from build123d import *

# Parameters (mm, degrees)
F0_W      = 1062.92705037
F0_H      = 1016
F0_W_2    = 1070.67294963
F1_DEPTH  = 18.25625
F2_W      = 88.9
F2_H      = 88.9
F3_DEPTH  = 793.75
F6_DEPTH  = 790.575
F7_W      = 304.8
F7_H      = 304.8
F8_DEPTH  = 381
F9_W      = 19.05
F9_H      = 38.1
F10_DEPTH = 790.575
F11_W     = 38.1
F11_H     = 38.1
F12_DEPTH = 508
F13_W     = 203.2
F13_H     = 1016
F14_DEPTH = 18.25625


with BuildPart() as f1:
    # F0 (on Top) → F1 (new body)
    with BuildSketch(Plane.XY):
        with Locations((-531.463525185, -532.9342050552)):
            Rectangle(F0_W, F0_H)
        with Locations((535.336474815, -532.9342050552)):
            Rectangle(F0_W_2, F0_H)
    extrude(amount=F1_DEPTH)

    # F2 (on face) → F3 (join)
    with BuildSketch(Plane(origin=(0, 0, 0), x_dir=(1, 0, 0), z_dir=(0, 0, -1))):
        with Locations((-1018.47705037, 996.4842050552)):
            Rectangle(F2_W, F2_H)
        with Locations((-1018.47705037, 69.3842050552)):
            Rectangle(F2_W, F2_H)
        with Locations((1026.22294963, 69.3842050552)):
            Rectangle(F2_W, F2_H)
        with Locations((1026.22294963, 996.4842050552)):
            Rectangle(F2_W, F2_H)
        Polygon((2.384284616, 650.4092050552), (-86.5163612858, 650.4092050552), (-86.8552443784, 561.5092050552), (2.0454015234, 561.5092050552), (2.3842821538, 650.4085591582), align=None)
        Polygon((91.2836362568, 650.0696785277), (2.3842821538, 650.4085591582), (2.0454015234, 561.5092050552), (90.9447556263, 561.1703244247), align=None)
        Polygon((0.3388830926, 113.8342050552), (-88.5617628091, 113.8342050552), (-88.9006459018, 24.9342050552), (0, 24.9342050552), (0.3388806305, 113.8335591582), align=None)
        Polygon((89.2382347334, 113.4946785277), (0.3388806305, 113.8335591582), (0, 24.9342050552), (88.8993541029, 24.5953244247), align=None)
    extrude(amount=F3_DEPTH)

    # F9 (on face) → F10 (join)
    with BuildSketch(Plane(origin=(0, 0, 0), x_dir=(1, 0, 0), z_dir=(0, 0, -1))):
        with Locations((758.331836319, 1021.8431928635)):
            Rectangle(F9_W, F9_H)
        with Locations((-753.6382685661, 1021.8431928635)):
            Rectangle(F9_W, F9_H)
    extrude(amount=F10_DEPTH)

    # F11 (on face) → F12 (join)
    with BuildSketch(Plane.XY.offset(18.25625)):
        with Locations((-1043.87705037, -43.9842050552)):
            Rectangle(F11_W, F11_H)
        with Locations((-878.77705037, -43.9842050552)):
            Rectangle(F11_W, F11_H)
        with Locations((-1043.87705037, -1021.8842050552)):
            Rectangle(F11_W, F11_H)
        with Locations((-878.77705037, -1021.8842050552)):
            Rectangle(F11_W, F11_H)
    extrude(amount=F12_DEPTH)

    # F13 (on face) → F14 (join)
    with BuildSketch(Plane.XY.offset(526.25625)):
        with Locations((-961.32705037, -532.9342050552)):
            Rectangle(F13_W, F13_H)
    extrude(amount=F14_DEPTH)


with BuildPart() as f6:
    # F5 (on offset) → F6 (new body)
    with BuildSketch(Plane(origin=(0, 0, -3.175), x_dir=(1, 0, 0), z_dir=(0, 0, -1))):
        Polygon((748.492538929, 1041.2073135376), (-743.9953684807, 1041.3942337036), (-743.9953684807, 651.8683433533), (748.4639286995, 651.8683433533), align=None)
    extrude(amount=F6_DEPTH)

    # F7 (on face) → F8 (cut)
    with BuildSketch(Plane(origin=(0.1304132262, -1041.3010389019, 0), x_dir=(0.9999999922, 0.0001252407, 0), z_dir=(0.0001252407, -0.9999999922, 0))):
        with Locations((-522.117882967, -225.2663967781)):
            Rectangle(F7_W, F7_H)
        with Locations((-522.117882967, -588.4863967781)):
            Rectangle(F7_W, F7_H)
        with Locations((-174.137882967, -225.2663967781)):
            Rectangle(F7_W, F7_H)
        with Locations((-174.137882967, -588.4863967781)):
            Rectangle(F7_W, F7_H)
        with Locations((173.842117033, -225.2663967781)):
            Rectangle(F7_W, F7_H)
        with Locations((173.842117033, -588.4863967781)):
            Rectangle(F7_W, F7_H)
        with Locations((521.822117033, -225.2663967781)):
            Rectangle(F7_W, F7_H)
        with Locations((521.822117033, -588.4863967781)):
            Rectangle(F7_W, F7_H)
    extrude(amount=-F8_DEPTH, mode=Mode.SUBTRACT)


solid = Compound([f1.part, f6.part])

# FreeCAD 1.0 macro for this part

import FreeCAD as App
import Part
import Sketcher
Q = App.Units.Quantity


def add_polygon(sketch, points):
    """Adds a closed chain of lines whose ends are joined by coincident constraints."""
    first, n = sketch.GeometryCount, len(points)
    for a, b in zip(points, points[1:] + points[:1]):
        sketch.addGeometry(Part.LineSegment(App.Vector(*a, 0), App.Vector(*b, 0)), False)
    for i in range(n):
        sketch.addConstraint(Sketcher.Constraint("Coincident", first + i, 2, first + (i + 1) % n, 1))

doc = App.newDocument("Part")
body = doc.addObject("PartDesign::Body", "Body")

sketch1 = body.newObject("Sketcher::SketchObject", "Sketch")
sketch1.AttachmentSupport = (doc.getObject("XY_Plane"), [""])
sketch1.MapMode = "FlatFace"
add_polygon(sketch1, [(-1063, -25), (-1063, -1041), (1071, -1041), (1071, -25)])
sketch1.addConstraint([
    Sketcher.Constraint("Vertical", 0),
    Sketcher.Constraint("Horizontal", 1),
    Sketcher.Constraint("Vertical", 2),
    Sketcher.Constraint("Horizontal", 3),
    Sketcher.Constraint("DistanceX", 1, 1, 1, 2, Q("84 in")),
    Sketcher.Constraint("DistanceY", 0, 2, 0, 1, Q("40 in")),
    Sketcher.Constraint("DistanceX", 0, 2, -1, 1, 1062.92705),
    Sketcher.Constraint("DistanceY", 0, 2, -1, 1, 1040.934205),
])
pad1 = body.newObject("PartDesign::Pad", "Pad")
pad1.Profile = sketch1
pad1.Length = Q("0.71875 in")

sketch2 = body.newObject("Sketcher::SketchObject", "Sketch001")
sketch2.AttachmentSupport = (doc.getObject("XY_Plane"), [""])
sketch2.MapMode = "FlatFace"
add_polygon(sketch2, [(-1062.9271, -1040.9342), (-1062.9271, -952.0342), (-974.0271, -952.0342), (-974.0271, -1040.9342)])
add_polygon(sketch2, [(-1062.9271, -113.8342), (-1062.9271, -24.9342), (-974.0271, -24.9342), (-974.0271, -113.8342)])
add_polygon(sketch2, [(981.7729, -113.8342), (981.7729, -24.9342), (1070.6729, -24.9342), (1070.6729, -113.8342)])
add_polygon(sketch2, [(981.7729, -1040.9342), (981.7729, -952.0342), (1070.6729, -952.0342), (1070.6729, -1040.9342)])
add_polygon(sketch2, [(2.3843, -650.4092), (-86.5164, -650.4092), (-86.8552, -561.5092), (2.0454, -561.5092), (90.9448, -561.1703), (91.2836, -650.0697), (2.3843, -650.4086)])
add_polygon(sketch2, [(0.3389, -113.8342), (-88.5618, -113.8342), (-88.9006, -24.9342), (0, -24.9342), (88.8994, -24.5953), (89.2382, -113.4947), (0.3389, -113.8336)])
sketch2.addConstraint([
    Sketcher.Constraint("Vertical", 0),
    Sketcher.Constraint("Horizontal", 1),
    Sketcher.Constraint("Vertical", 2),
    Sketcher.Constraint("Horizontal", 3),
    Sketcher.Constraint("Vertical", 4),
    Sketcher.Constraint("Horizontal", 5),
    Sketcher.Constraint("Vertical", 6),
    Sketcher.Constraint("Horizontal", 7),
    Sketcher.Constraint("Vertical", 8),
    Sketcher.Constraint("Horizontal", 9),
    Sketcher.Constraint("Vertical", 10),
    Sketcher.Constraint("Horizontal", 11),
    Sketcher.Constraint("Vertical", 12),
    Sketcher.Constraint("Horizontal", 13),
    Sketcher.Constraint("Vertical", 14),
    Sketcher.Constraint("Horizontal", 15),
    Sketcher.Constraint("Horizontal", 16),
    Sketcher.Constraint("Horizontal", 18),
    Sketcher.Constraint("Horizontal", 23),
    Sketcher.Constraint("Horizontal", 25),
    Sketcher.Constraint("PointOnObject", 25, 2, -2),
    Sketcher.Constraint("Perpendicular", 17, 19),
    Sketcher.Constraint("Perpendicular", 19, 20),
    Sketcher.Constraint("Perpendicular", 20, 21),
    Sketcher.Constraint("Perpendicular", 21, 22),
    Sketcher.Constraint("Perpendicular", 21, 24),
    Sketcher.Constraint("Perpendicular", 24, 26),
    Sketcher.Constraint("Perpendicular", 26, 27),
    Sketcher.Constraint("Perpendicular", 27, 28),
    Sketcher.Constraint("Perpendicular", 28, 29),
    Sketcher.Constraint("Horizontal", 5, 2, 8, 2),
    Sketcher.Constraint("Horizontal", 7, 2, 10, 2),
    Sketcher.Constraint("Horizontal", 1, 2, 12, 2),
    Sketcher.Constraint("Horizontal", 3, 2, 14, 2),
    Sketcher.Constraint("Horizontal", 11, 2, 23, 2),
    Sketcher.Constraint("Horizontal", 9, 2, 24, 2),
    Sketcher.Constraint("Vertical", 3, 2, 4, 2),
    Sketcher.Constraint("Vertical", 2, 2, 5, 2),
    Sketcher.Constraint("Vertical", 11, 2, 12, 2),
    Sketcher.Constraint("Vertical", 10, 2, 13, 2),
    Sketcher.Constraint("Equal", 7, 9),
    Sketcher.Constraint("Equal", 16, 18),
    Sketcher.Constraint("Equal", 18, 23),
    Sketcher.Constraint("Equal", 23, 25),
    Sketcher.Constraint("Equal", 15, 0),
    Sketcher.Constraint("Equal", 2, 4),
    Sketcher.Constraint("Equal", 19, 20),
    Sketcher.Constraint("Equal", 17, 24),
    Sketcher.Constraint("Equal", 21, 26),
    Sketcher.Constraint("Equal", 26, 27),
    Sketcher.Constraint("DistanceX", 1, 1, 1, 2, Q("3.5 in")),
    Sketcher.Constraint("DistanceY", 3, 2, 4, 2, Q("40 in")),
    Sketcher.Constraint("DistanceX", 5, 2, 8, 2, Q("77 in")),
    Sketcher.Constraint("DistanceX", 17, 2, 19, 2, Q("7 in")),
    Sketcher.Constraint("Distance", 19, Q("3.5 in")),
    Sketcher.Constraint("DistanceY", 1, 2, 16, 2, Q("11.875 in")),
    Sketcher.Constraint("DistanceX", -1, 1, 18, 2, 2.045402),
    Sketcher.Constraint("DistanceX", 0, 2, -1, 1, 1062.92705),
    Sketcher.Constraint("DistanceX", 16, 2, -1, 1, 86.516361),
    Sketcher.Constraint("DistanceY", 20, 2, -1, 1, 650.069679),
])
pad2 = body.newObject("PartDesign::Pad", "Pad001")
pad2.Profile = sketch2
pad2.Length = Q("31.25 in")
pad2.Reversed = True

sketch3 = body.newObject("Sketcher::SketchObject", "Sketch002")
sketch3.AttachmentSupport = (doc.getObject("XY_Plane"), [""])
sketch3.MapMode = "FlatFace"
add_polygon(sketch3, [(749, -1041), (749, -1003), (768, -1003), (768, -1041)])
add_polygon(sketch3, [(-763, -1041), (-763, -1003), (-744, -1003), (-744, -1041)])
sketch3.addConstraint([
    Sketcher.Constraint("Vertical", 0),
    Sketcher.Constraint("Horizontal", 1),
    Sketcher.Constraint("Vertical", 2),
    Sketcher.Constraint("Horizontal", 3),
    Sketcher.Constraint("Vertical", 4),
    Sketcher.Constraint("Horizontal", 5),
    Sketcher.Constraint("Vertical", 6),
    Sketcher.Constraint("Horizontal", 7),
    Sketcher.Constraint("Horizontal", 1, 2, 4, 2),
    Sketcher.Constraint("Horizontal", 3, 2, 6, 2),
    Sketcher.Constraint("Equal", 3, 5),
    Sketcher.Constraint("DistanceY", 0, 1, 0, 2, Q("1.5 in")),
    Sketcher.Constraint("DistanceX", 1, 1, 1, 2, Q("0.75 in")),
    Sketcher.Constraint("DistanceX", 4, 2, -1, 1, 763.163269),
    Sketcher.Constraint("DistanceX", -1, 1, 0, 2, 748.806836),
    Sketcher.Constraint("DistanceY", 0, 2, -1, 1, 1002.793193),
])
pad3 = body.newObject("PartDesign::Pad", "Pad002")
pad3.Profile = sketch3
pad3.Length = Q("31.125 in")
pad3.Reversed = True

sketch4 = body.newObject("Sketcher::SketchObject", "Sketch003")
sketch4.AttachmentSupport = (doc.getObject("XY_Plane"), [""])
sketch4.MapMode = "FlatFace"
sketch4.AttachmentOffset = App.Placement(App.Vector(0, 0, 0.71875 * 25.4), App.Rotation())
add_polygon(sketch4, [(-1063, -25), (-1063, -63), (-1025, -63), (-1025, -25)])
add_polygon(sketch4, [(-898, -25), (-898, -63), (-860, -63), (-860, -25)])
add_polygon(sketch4, [(-1063, -1003), (-1063, -1041), (-1025, -1041), (-1025, -1003)])
add_polygon(sketch4, [(-898, -1003), (-898, -1041), (-860, -1041), (-860, -1003)])
sketch4.addConstraint([
    Sketcher.Constraint("Vertical", 0),
    Sketcher.Constraint("Horizontal", 1),
    Sketcher.Constraint("Vertical", 2),
    Sketcher.Constraint("Horizontal", 3),
    Sketcher.Constraint("Vertical", 4),
    Sketcher.Constraint("Horizontal", 5),
    Sketcher.Constraint("Vertical", 6),
    Sketcher.Constraint("Horizontal", 7),
    Sketcher.Constraint("Vertical", 8),
    Sketcher.Constraint("Horizontal", 9),
    Sketcher.Constraint("Vertical", 10),
    Sketcher.Constraint("Horizontal", 11),
    Sketcher.Constraint("Vertical", 12),
    Sketcher.Constraint("Horizontal", 13),
    Sketcher.Constraint("Vertical", 14),
    Sketcher.Constraint("Horizontal", 15),
    Sketcher.Constraint("Horizontal", 1, 2, 4, 2),
    Sketcher.Constraint("Horizontal", 3, 2, 6, 2),
    Sketcher.Constraint("Horizontal", 9, 2, 12, 2),
    Sketcher.Constraint("Horizontal", 11, 2, 14, 2),
    Sketcher.Constraint("Vertical", 3, 2, 8, 2),
    Sketcher.Constraint("Vertical", 2, 2, 9, 2),
    Sketcher.Constraint("Vertical", 7, 2, 12, 2),
    Sketcher.Constraint("Vertical", 6, 2, 13, 2),
    Sketcher.Constraint("Equal", 3, 5),
    Sketcher.Constraint("Equal", 15, 0),
    Sketcher.Constraint("Equal", 6, 8),
    Sketcher.Constraint("DistanceX", 1, 1, 1, 2, Q("1.5 in")),
    Sketcher.Constraint("DistanceX", 1, 2, 4, 2, Q("5 in")),
    Sketcher.Constraint("DistanceY", 8, 2, 3, 2, Q("40 in")),
    Sketcher.Constraint("DistanceX", 0, 2, -1, 1, 1062.92705),
    Sketcher.Constraint("DistanceY", 0, 2, -1, 1, 63.034205),
])
pad4 = body.newObject("PartDesign::Pad", "Pad003")
pad4.Profile = sketch4
pad4.Length = Q("20 in")

sketch5 = body.newObject("Sketcher::SketchObject", "Sketch004")
sketch5.AttachmentSupport = (doc.getObject("XY_Plane"), [""])
sketch5.MapMode = "FlatFace"
sketch5.AttachmentOffset = App.Placement(App.Vector(0, 0, 20.71875 * 25.4), App.Rotation())
add_polygon(sketch5, [(-1063, -25), (-1063, -1041), (-860, -1041), (-860, -25)])
sketch5.addConstraint([
    Sketcher.Constraint("Vertical", 0),
    Sketcher.Constraint("Horizontal", 1),
    Sketcher.Constraint("Vertical", 2),
    Sketcher.Constraint("Horizontal", 3),
    Sketcher.Constraint("DistanceX", 1, 1, 1, 2, Q("8 in")),
    Sketcher.Constraint("DistanceY", 0, 2, 0, 1, Q("40 in")),
    Sketcher.Constraint("DistanceX", 0, 2, -1, 1, 1062.92705),
    Sketcher.Constraint("DistanceY", 0, 2, -1, 1, 1040.934205),
])
pad5 = body.newObject("PartDesign::Pad", "Pad004")
pad5.Profile = sketch5
pad5.Length = Q("0.71875 in")
body2 = doc.addObject("PartDesign::Body", "Body001")

sketch6 = body2.newObject("Sketcher::SketchObject", "Sketch005")
sketch6.AttachmentSupport = (doc.getObject("XY_Plane001"), [""])
sketch6.MapMode = "FlatFace"
sketch6.AttachmentOffset = App.Placement(App.Vector(0, 0, -0.125 * 25.4), App.Rotation())
add_polygon(sketch6, [(748, -1041), (-744, -1041), (-744, -652), (748, -652)])
sketch6.addConstraint([
    Sketcher.Constraint("Vertical", 1),
    Sketcher.Constraint("Horizontal", 2),
    Sketcher.Constraint("DistanceY", 1, 1, 1, 2, 389.52589),
    Sketcher.Constraint("Distance", 0, 1492.487919),
    Sketcher.Constraint("Distance", 3, 389.338971),
    Sketcher.Constraint("DistanceX", 2, 1, 2, 2, 1492.459297),
    Sketcher.Constraint("DistanceX", 0, 2, -1, 1, 743.995368),
    Sketcher.Constraint("DistanceY", 0, 2, -1, 1, 1041.394234),
])
pad6 = body2.newObject("PartDesign::Pad", "Pad005")
pad6.Profile = sketch6
pad6.Length = Q("31.125 in")
pad6.Reversed = True

sketch7 = body2.newObject("Sketcher::SketchObject", "Sketch006")
sketch7.Placement = App.Placement(App.Vector(0.130413, -1041.301039, 0), App.Rotation(App.Vector(0.999999992, 0.000125241, 0), App.Vector(0, 0, 1), App.Vector(0.000125241, -0.999999992, 0), "ZXY"))
add_polygon(sketch7, [(-675, -73), (-675, -378), (-370, -378), (-370, -73)])
add_polygon(sketch7, [(-675, -436), (-675, -741), (-370, -741), (-370, -436)])
add_polygon(sketch7, [(-327, -73), (-327, -378), (-22, -378), (-22, -73)])
add_polygon(sketch7, [(-327, -436), (-327, -741), (-22, -741), (-22, -436)])
add_polygon(sketch7, [(21, -73), (21, -378), (326, -378), (326, -73)])
add_polygon(sketch7, [(21, -436), (21, -741), (326, -741), (326, -436)])
add_polygon(sketch7, [(369, -73), (369, -378), (674, -378), (674, -73)])
add_polygon(sketch7, [(369, -436), (369, -741), (674, -741), (674, -436)])
sketch7.addConstraint([
    Sketcher.Constraint("Vertical", 0),
    Sketcher.Constraint("Horizontal", 1),
    Sketcher.Constraint("Vertical", 2),
    Sketcher.Constraint("Horizontal", 3),
    Sketcher.Constraint("Vertical", 4),
    Sketcher.Constraint("Horizontal", 5),
    Sketcher.Constraint("Vertical", 6),
    Sketcher.Constraint("Horizontal", 7),
    Sketcher.Constraint("Vertical", 8),
    Sketcher.Constraint("Horizontal", 9),
    Sketcher.Constraint("Vertical", 10),
    Sketcher.Constraint("Horizontal", 11),
    Sketcher.Constraint("Vertical", 12),
    Sketcher.Constraint("Horizontal", 13),
    Sketcher.Constraint("Vertical", 14),
    Sketcher.Constraint("Horizontal", 15),
    Sketcher.Constraint("Vertical", 16),
    Sketcher.Constraint("Horizontal", 17),
    Sketcher.Constraint("Vertical", 18),
    Sketcher.Constraint("Horizontal", 19),
    Sketcher.Constraint("Vertical", 20),
    Sketcher.Constraint("Horizontal", 21),
    Sketcher.Constraint("Vertical", 22),
    Sketcher.Constraint("Horizontal", 23),
    Sketcher.Constraint("Vertical", 24),
    Sketcher.Constraint("Horizontal", 25),
    Sketcher.Constraint("Vertical", 26),
    Sketcher.Constraint("Horizontal", 27),
    Sketcher.Constraint("Vertical", 28),
    Sketcher.Constraint("Horizontal", 29),
    Sketcher.Constraint("Vertical", 30),
    Sketcher.Constraint("Horizontal", 31),
    Sketcher.Constraint("Horizontal", 1, 2, 8, 2),
    Sketcher.Constraint("Horizontal", 3, 2, 10, 2),
    Sketcher.Constraint("Horizontal", 5, 2, 12, 2),
    Sketcher.Constraint("Horizontal", 7, 2, 14, 2),
    Sketcher.Constraint("Horizontal", 9, 2, 16, 2),
    Sketcher.Constraint("Horizontal", 11, 2, 18, 2),
    Sketcher.Constraint("Horizontal", 13, 2, 20, 2),
    Sketcher.Constraint("Horizontal", 15, 2, 22, 2),
    Sketcher.Constraint("Horizontal", 17, 2, 24, 2),
    Sketcher.Constraint("Horizontal", 19, 2, 26, 2),
    Sketcher.Constraint("Horizontal", 21, 2, 28, 2),
    Sketcher.Constraint("Horizontal", 23, 2, 30, 2),
    Sketcher.Constraint("Vertical", 3, 2, 4, 2),
    Sketcher.Constraint("Vertical", 2, 2, 5, 2),
    Sketcher.Constraint("Vertical", 11, 2, 12, 2),
    Sketcher.Constraint("Vertical", 10, 2, 13, 2),
    Sketcher.Constraint("Vertical", 19, 2, 20, 2),
    Sketcher.Constraint("Vertical", 18, 2, 21, 2),
    Sketcher.Constraint("Vertical", 27, 2, 28, 2),
    Sketcher.Constraint("Vertical", 26, 2, 29, 2),
    Sketcher.Constraint("Equal", 7, 9),
    Sketcher.Constraint("Equal", 15, 17),
    Sketcher.Constraint("Equal", 23, 25),
    Sketcher.Constraint("Equal", 31, 0),
    Sketcher.Constraint("Equal", 2, 4),
    Sketcher.Constraint("DistanceX", 1, 1, 1, 2, Q("12 in")),
    Sketcher.Constraint("DistanceY", 4, 2, 0, 2, Q("14.3 in")),
    Sketcher.Constraint("DistanceX", 1, 2, 8, 2, Q("1.7 in")),
    Sketcher.Constraint("DistanceX", 9, 2, 16, 2, Q("1.7 in")),
    Sketcher.Constraint("DistanceX", 17, 2, 24, 2, Q("1.7 in")),
    Sketcher.Constraint("DistanceX", 0, 2, -1, 1, 674.517883),
    Sketcher.Constraint("DistanceY", 0, 2, -1, 1, 377.666397),
])
pocket1 = body2.newObject("PartDesign::Pocket", "Pocket")
pocket1.Profile = sketch7
pocket1.Length = Q("15 in")

doc.recompute()
